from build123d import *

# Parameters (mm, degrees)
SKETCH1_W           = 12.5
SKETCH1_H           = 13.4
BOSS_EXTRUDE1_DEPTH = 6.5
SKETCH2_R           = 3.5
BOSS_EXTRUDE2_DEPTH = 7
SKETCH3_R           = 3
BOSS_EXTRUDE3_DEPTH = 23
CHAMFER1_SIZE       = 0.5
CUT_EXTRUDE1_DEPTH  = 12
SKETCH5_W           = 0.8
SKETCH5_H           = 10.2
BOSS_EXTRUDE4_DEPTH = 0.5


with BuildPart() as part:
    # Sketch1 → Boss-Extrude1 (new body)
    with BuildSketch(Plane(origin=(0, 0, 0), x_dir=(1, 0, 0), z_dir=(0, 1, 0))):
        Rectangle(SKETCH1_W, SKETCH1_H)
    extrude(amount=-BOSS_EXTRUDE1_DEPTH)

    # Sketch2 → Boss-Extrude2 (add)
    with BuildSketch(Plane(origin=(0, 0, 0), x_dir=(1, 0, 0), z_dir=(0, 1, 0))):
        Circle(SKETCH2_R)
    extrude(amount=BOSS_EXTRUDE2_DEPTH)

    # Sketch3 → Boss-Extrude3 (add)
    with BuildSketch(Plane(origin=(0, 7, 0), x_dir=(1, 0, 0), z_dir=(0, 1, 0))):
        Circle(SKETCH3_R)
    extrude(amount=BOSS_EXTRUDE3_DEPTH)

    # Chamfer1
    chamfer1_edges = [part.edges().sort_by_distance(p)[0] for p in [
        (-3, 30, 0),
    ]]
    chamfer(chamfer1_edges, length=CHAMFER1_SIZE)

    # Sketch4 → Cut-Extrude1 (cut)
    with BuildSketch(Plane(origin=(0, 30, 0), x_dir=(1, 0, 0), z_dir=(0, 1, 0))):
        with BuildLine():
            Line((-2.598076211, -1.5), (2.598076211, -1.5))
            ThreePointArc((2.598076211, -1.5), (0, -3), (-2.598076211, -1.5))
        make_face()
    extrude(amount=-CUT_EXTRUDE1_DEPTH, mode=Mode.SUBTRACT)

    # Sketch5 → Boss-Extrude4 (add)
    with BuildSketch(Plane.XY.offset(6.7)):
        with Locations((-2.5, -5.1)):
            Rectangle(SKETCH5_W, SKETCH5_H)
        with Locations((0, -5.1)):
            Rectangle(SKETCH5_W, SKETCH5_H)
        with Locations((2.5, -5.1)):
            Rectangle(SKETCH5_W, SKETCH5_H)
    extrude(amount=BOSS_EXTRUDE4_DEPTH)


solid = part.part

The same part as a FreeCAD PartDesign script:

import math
import FreeCAD as App
import Part
import Sketcher

V = App.Vector
Q = App.Units.Quantity


def edges_at(feature, points):
    """Names of the edges that pass closest to the given points."""
    edges = feature.Shape.Edges
    near = lambda p: min(range(len(edges)), key=lambda i: edges[i].distToShape(Part.Vertex(*p))[0])
    return sorted({f"Edge{near(p) + 1}" for p in points})


def add_polygon(sketch, points):
    """Adds a closed chain of lines whose ends are joined by coincident constraints."""
    first, n = sketch.GeometryCount, len(points)
    for a, b in zip(points, points[1:] + points[:1]):
        sketch.addGeometry(Part.LineSegment(App.Vector(*a, 0), App.Vector(*b, 0)), False)
    for i in range(n):
        sketch.addConstraint(Sketcher.Constraint("Coincident", first + i, 2, first + (i + 1) % n, 1))

doc = App.newDocument("Part")
body = doc.addObject("PartDesign::Body", "Body")

# Sketch on XZ plane
sketch1 = body.newObject("Sketcher::SketchObject", "Sketch")
sketch1.AttachmentSupport = (doc.getObject("XZ_Plane"), [""])
sketch1.MapMode = "FlatFace"
add_polygon(sketch1, [(-6, -7), (-6, 7), (6, 7), (6, -7)])  # lines 0-3
sketch1.addConstraint([
    Sketcher.Constraint("Vertical", 0),
    Sketcher.Constraint("Horizontal", 1),
    Sketcher.Constraint("Vertical", 2),
    Sketcher.Constraint("Horizontal", 3),
    Sketcher.Constraint("Symmetric", 0, 2, 2, 2, -1, 1),
    Sketcher.Constraint("DistanceX", 1, 1, 1, 2, Q("12.5 mm")),
    Sketcher.Constraint("DistanceY", 0, 1, 0, 2, Q("13.4 mm")),
])
pad1 = body.newObject("PartDesign::Pad", "Pad")
pad1.Profile = sketch1
pad1.Length = 6.5

# Sketch on XZ plane
sketch2 = body.newObject("Sketcher::SketchObject", "Sketch001")
sketch2.AttachmentSupport = (doc.getObject("XZ_Plane"), [""])
sketch2.MapMode = "FlatFace"
sketch2.addGeometry(Part.Circle(V(0, 0, 0), V(0, 0, 1), 3.5), False)
sketch2.addConstraint([
    Sketcher.Constraint("Coincident", 0, 3, -1, 1),
    Sketcher.Constraint("Diameter", 0, Q("7 mm")),
])
pad2 = body.newObject("PartDesign::Pad", "Pad001")
pad2.Profile = sketch2
pad2.Length = 7
pad2.Reversed = True

# Sketch on XZ plane
sketch3 = body.newObject("Sketcher::SketchObject", "Sketch002")
sketch3.AttachmentSupport = (doc.getObject("XZ_Plane"), [""])
sketch3.MapMode = "FlatFace"
sketch3.AttachmentOffset = App.Placement(V(0, 0, -7), App.Rotation())
sketch3.addGeometry(Part.Circle(V(0, 0, 0), V(0, 0, 1), 3), False)
sketch3.addConstraint([
    Sketcher.Constraint("Coincident", 0, 3, -1, 1),
    Sketcher.Constraint("Diameter", 0, Q("6 mm")),
])
pad3 = body.newObject("PartDesign::Pad", "Pad002")
pad3.Profile = sketch3
pad3.Length = 23
pad3.Reversed = True
doc.recompute()

chamfer = body.newObject("PartDesign::Chamfer", "Chamfer")
chamfer.Base = (pad3, edges_at(pad3, [(-3, 30, 0)]))
chamfer.Size = 0.5

# Sketch on XZ plane
sketch4 = body.newObject("Sketcher::SketchObject", "Sketch003")
sketch4.AttachmentSupport = (doc.getObject("XZ_Plane"), [""])
sketch4.MapMode = "FlatFace"
sketch4.AttachmentOffset = App.Placement(V(0, 0, -30), App.Rotation())
sketch4.addGeometry([
    Part.LineSegment(V(2.6, 1.5, 0), V(-2.6, 1.5, 0)),
    Part.ArcOfCircle(Part.Circle(V(0, 0, 0), V(0, 0, 1), 3), math.radians(30), math.radians(150)),
], False)
sketch4.addConstraint([
    Sketcher.Constraint("Coincident", 0, 1, 1, 1),
    Sketcher.Constraint("Coincident", 1, 2, 0, 2),
    Sketcher.Constraint("Horizontal", 0),
    Sketcher.Constraint("Coincident", 1, 3, -1, 1),
    Sketcher.Constraint("Radius", 1, Q("3 mm")),
    Sketcher.Constraint("DistanceY", -1, 1, 0, 1, Q("1.5 mm")),
])
pocket1 = body.newObject("PartDesign::Pocket", "Pocket")
pocket1.Profile = sketch4
pocket1.Length = 12
pocket1.Reversed = True

# Sketch on XY plane
sketch5 = body.newObject("Sketcher::SketchObject", "Sketch004")
sketch5.AttachmentSupport = (doc.getObject("XY_Plane"), [""])
sketch5.MapMode = "FlatFace"
sketch5.AttachmentOffset = App.Placement(V(0, 0, 6.7), App.Rotation())
add_polygon(sketch5, [(-2.9, 0), (-2.9, -10.2), (-2.1, -10.2), (-2.1, 0)])  # lines 0-3
add_polygon(sketch5, [(-0.4, 0), (-0.4, -10.2), (0.4, -10.2), (0.4, 0)])  # lines 4-7
add_polygon(sketch5, [(2.1, 0), (2.1, -10.2), (2.9, -10.2), (2.9, 0)])  # lines 8-11
sketch5.addConstraint([
    Sketcher.Constraint("Vertical", 0),
    Sketcher.Constraint("Horizontal", 1),
    Sketcher.Constraint("Vertical", 2),
    Sketcher.Constraint("Horizontal", 3),
    Sketcher.Constraint("Vertical", 4),
    Sketcher.Constraint("Horizontal", 5),
    Sketcher.Constraint("Vertical", 6),
    Sketcher.Constraint("Horizontal", 7),
    Sketcher.Constraint("Vertical", 8),
    Sketcher.Constraint("Horizontal", 9),
    Sketcher.Constraint("Vertical", 10),
    Sketcher.Constraint("Horizontal", 11),
    Sketcher.Constraint("Symmetric", 6, 2, 7, 2, -1, 1),
    Sketcher.Constraint("Symmetric", 3, 2, 10, 2, -1, 1),
    Sketcher.Constraint("Symmetric", 1, 2, 8, 2, -2),
    Sketcher.Constraint("PointOnObject", 2, 2, -1),
    Sketcher.Constraint("Horizontal", 1, 2, 4, 2),
    Sketcher.Constraint("Equal", 3, 5),
    Sketcher.Constraint("DistanceX", 1, 1, 1, 2, Q("0.8 mm")),
    Sketcher.Constraint("DistanceY", 0, 2, 0, 1, Q("10.2 mm")),
    Sketcher.Constraint("DistanceX", 0, 2, 8, 2, Q("5 mm")),
])
pad4 = body.newObject("PartDesign::Pad", "Pad003")
pad4.Profile = sketch5
pad4.Length = 0.5

doc.recompute()
